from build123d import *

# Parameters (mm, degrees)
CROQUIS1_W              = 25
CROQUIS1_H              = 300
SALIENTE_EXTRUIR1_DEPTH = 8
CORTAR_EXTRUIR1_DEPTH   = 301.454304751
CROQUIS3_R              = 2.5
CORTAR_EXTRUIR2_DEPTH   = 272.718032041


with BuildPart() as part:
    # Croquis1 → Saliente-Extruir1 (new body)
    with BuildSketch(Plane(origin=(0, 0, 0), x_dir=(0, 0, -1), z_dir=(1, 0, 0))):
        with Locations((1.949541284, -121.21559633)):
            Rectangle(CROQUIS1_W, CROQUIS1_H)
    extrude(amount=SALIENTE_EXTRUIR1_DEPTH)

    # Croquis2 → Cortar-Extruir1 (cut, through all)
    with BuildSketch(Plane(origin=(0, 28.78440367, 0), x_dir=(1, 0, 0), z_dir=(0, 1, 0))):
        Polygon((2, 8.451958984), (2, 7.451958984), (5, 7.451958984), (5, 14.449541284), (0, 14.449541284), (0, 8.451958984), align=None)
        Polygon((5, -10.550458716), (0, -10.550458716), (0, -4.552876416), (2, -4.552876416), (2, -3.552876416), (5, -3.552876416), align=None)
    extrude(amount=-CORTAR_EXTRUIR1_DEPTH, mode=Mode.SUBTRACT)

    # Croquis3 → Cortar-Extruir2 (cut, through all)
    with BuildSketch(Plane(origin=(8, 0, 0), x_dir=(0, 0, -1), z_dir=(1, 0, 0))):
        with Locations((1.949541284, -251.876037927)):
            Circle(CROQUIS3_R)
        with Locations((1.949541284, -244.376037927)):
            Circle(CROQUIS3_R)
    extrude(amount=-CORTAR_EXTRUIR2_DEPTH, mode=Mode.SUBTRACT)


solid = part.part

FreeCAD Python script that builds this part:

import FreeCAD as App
import Part
import Sketcher
from FreeCAD import Vector
Q = App.Units.Quantity

doc = App.newDocument("Part")
body = doc.addObject("PartDesign::Body", "Body")

# Sketch on YZ plane
sketch1 = body.newObject("Sketcher::SketchObject", "Sketch")
sketch1.AttachmentSupport = (doc.getObject("YZ_Plane"), [""])
sketch1.MapMode = "FlatFace"
sketch1.addGeometry([
    Part.LineSegment(Vector(28.784404, 10.550459, 0), Vector(-271.215596, 10.550459, 0)),
    Part.LineSegment(Vector(-271.215596, 10.550459, 0), Vector(-271.215596, -14.449541, 0)),
    Part.LineSegment(Vector(-271.215596, -14.449541, 0), Vector(28.784404, -14.449541, 0)),
    Part.LineSegment(Vector(28.784404, -14.449541, 0), Vector(28.784404, 10.550459, 0)),
], False)
sketch1.addConstraint([
    Sketcher.Constraint("Coincident", 0, 2, 1, 1),
    Sketcher.Constraint("Coincident", 1, 2, 2, 1),
    Sketcher.Constraint("Coincident", 2, 2, 3, 1),
    Sketcher.Constraint("Coincident", 3, 2, 0, 1),
    Sketcher.Constraint("Horizontal", 0),
    Sketcher.Constraint("Vertical", 1),
    Sketcher.Constraint("Horizontal", 2),
    Sketcher.Constraint("Vertical", 3),
    Sketcher.Constraint("DistanceX", 0, 2, 0, 1, Q("300 mm")),
    Sketcher.Constraint("DistanceY", 1, 2, 1, 1, Q("25 mm")),
    Sketcher.Constraint("DistanceY", -1, 1, 0, 2, Q("10.550459 mm")),
    Sketcher.Constraint("DistanceX", 0, 2, -1, 1, Q("271.215596 mm")),
])
pad1 = body.newObject("PartDesign::Pad", "Pad")
pad1.Profile = sketch1
pad1.Length = 8

# Sketch on XZ plane
sketch2 = body.newObject("Sketcher::SketchObject", "Sketch001")
sketch2.AttachmentSupport = (doc.getObject("XZ_Plane"), [""])
sketch2.MapMode = "FlatFace"
sketch2.AttachmentOffset = App.Placement(Vector(0, 0, -28.784404), App.Rotation())
sketch2.addGeometry([
    Part.LineSegment(Vector(2, -8.451959, 0), Vector(2, -7.451959, 0)),  # 0
    Part.LineSegment(Vector(2, -7.451959, 0), Vector(5, -7.451959, 0)),  # 1
    Part.LineSegment(Vector(5, -7.451959, 0), Vector(5, -14.449541, 0)),  # 2
    Part.LineSegment(Vector(5, -14.449541, 0), Vector(0, -14.449541, 0)),  # 3
    Part.LineSegment(Vector(0, -14.449541, 0), Vector(0, -8.451959, 0)),  # 4
    Part.LineSegment(Vector(0, -8.451959, 0), Vector(2, -8.451959, 0)),  # 5
    Part.LineSegment(Vector(0, 10.550459, 0), Vector(5, 10.550459, 0)),  # 6
    Part.LineSegment(Vector(5, 10.550459, 0), Vector(5, 3.552876, 0)),  # 7
    Part.LineSegment(Vector(5, 3.552876, 0), Vector(2, 3.552876, 0)),  # 8
    Part.LineSegment(Vector(2, 3.552876, 0), Vector(2, 4.552876, 0)),  # 9
    Part.LineSegment(Vector(2, 4.552876, 0), Vector(0, 4.552876, 0)),  # 10
    Part.LineSegment(Vector(0, 4.552876, 0), Vector(0, 10.550459, 0)),  # 11
], False)
sketch2.addConstraint([
    Sketcher.Constraint("Coincident", 0, 2, 1, 1),
    Sketcher.Constraint("Coincident", 1, 2, 2, 1),
    Sketcher.Constraint("Coincident", 2, 2, 3, 1),
    Sketcher.Constraint("Coincident", 3, 2, 4, 1),
    Sketcher.Constraint("Coincident", 4, 2, 5, 1),
    Sketcher.Constraint("Coincident", 5, 2, 0, 1),
    Sketcher.Constraint("Coincident", 6, 2, 7, 1),
    Sketcher.Constraint("Coincident", 7, 2, 8, 1),
    Sketcher.Constraint("Coincident", 8, 2, 9, 1),
    Sketcher.Constraint("Coincident", 9, 2, 10, 1),
    Sketcher.Constraint("Coincident", 10, 2, 11, 1),
    Sketcher.Constraint("Coincident", 11, 2, 6, 1),
    Sketcher.Constraint("Vertical", 0),
    Sketcher.Constraint("Horizontal", 1),
    Sketcher.Constraint("Vertical", 2),
    Sketcher.Constraint("Horizontal", 3),
    Sketcher.Constraint("Vertical", 4),
    Sketcher.Constraint("Horizontal", 5),
    Sketcher.Constraint("Horizontal", 6),
    Sketcher.Constraint("Vertical", 7),
    Sketcher.Constraint("Horizontal", 8),
    Sketcher.Constraint("Vertical", 9),
    Sketcher.Constraint("Horizontal", 10),
    Sketcher.Constraint("Vertical", 11),
    Sketcher.Constraint("PointOnObject", 3, 2, -2),
    Sketcher.Constraint("PointOnObject", 10, 2, -2),
    Sketcher.Constraint("Vertical", 2, 2, 6, 2),
    Sketcher.Constraint("Vertical", 5, 2, 8, 2),
    Sketcher.Constraint("Equal", 2, 7),
    Sketcher.Constraint("Equal", 0, 9),
    Sketcher.Constraint("DistanceX", 1, 1, 1, 2, Q("3 mm")),
    Sketcher.Constraint("DistanceX", 3, 2, 3, 1, Q("5 mm")),
    Sketcher.Constraint("DistanceY", 0, 1, 0, 2, Q("1 mm")),
    Sketcher.Constraint("DistanceY", 2, 2, 6, 2, Q("25 mm")),
    Sketcher.Constraint("DistanceY", 2, 2, 2, 1, Q("6.997582 mm")),
    Sketcher.Constraint("DistanceY", 0, 2, -1, 1, Q("7.451959 mm")),
])
pocket1 = body.newObject("PartDesign::Pocket", "Pocket")
pocket1.Profile = sketch2
pocket1.Type = "ThroughAll"
pocket1.Reversed = True

# Sketch on YZ plane
sketch3 = body.newObject("Sketcher::SketchObject", "Sketch002")
sketch3.AttachmentSupport = (doc.getObject("YZ_Plane"), [""])
sketch3.MapMode = "FlatFace"
sketch3.AttachmentOffset = App.Placement(Vector(0, 0, 8), App.Rotation())
sketch3.addGeometry([
    Part.Circle(Vector(-251.876038, -1.949541, 0), Vector(0, 0, 1), 2.5),
    Part.Circle(Vector(-244.376038, -1.949541, 0), Vector(0, 0, 1), 2.5),
], False)
sketch3.addConstraint([
    Sketcher.Constraint("Equal", 0, 1),
    Sketcher.Constraint("Horizontal", 0, 3, 1, 3),
    Sketcher.Constraint("Diameter", 0, Q("5 mm")),
    Sketcher.Constraint("DistanceX", 0, 3, 1, 3, Q("7.5 mm")),
    Sketcher.Constraint("DistanceY", 0, 3, -1, 1, Q("1.949541 mm")),
    Sketcher.Constraint("DistanceX", 0, 3, -1, 1, Q("251.876038 mm")),
])
pocket2 = body.newObject("PartDesign::Pocket", "Pocket001")
pocket2.Profile = sketch3
pocket2.Type = "ThroughAll"

doc.recompute()
